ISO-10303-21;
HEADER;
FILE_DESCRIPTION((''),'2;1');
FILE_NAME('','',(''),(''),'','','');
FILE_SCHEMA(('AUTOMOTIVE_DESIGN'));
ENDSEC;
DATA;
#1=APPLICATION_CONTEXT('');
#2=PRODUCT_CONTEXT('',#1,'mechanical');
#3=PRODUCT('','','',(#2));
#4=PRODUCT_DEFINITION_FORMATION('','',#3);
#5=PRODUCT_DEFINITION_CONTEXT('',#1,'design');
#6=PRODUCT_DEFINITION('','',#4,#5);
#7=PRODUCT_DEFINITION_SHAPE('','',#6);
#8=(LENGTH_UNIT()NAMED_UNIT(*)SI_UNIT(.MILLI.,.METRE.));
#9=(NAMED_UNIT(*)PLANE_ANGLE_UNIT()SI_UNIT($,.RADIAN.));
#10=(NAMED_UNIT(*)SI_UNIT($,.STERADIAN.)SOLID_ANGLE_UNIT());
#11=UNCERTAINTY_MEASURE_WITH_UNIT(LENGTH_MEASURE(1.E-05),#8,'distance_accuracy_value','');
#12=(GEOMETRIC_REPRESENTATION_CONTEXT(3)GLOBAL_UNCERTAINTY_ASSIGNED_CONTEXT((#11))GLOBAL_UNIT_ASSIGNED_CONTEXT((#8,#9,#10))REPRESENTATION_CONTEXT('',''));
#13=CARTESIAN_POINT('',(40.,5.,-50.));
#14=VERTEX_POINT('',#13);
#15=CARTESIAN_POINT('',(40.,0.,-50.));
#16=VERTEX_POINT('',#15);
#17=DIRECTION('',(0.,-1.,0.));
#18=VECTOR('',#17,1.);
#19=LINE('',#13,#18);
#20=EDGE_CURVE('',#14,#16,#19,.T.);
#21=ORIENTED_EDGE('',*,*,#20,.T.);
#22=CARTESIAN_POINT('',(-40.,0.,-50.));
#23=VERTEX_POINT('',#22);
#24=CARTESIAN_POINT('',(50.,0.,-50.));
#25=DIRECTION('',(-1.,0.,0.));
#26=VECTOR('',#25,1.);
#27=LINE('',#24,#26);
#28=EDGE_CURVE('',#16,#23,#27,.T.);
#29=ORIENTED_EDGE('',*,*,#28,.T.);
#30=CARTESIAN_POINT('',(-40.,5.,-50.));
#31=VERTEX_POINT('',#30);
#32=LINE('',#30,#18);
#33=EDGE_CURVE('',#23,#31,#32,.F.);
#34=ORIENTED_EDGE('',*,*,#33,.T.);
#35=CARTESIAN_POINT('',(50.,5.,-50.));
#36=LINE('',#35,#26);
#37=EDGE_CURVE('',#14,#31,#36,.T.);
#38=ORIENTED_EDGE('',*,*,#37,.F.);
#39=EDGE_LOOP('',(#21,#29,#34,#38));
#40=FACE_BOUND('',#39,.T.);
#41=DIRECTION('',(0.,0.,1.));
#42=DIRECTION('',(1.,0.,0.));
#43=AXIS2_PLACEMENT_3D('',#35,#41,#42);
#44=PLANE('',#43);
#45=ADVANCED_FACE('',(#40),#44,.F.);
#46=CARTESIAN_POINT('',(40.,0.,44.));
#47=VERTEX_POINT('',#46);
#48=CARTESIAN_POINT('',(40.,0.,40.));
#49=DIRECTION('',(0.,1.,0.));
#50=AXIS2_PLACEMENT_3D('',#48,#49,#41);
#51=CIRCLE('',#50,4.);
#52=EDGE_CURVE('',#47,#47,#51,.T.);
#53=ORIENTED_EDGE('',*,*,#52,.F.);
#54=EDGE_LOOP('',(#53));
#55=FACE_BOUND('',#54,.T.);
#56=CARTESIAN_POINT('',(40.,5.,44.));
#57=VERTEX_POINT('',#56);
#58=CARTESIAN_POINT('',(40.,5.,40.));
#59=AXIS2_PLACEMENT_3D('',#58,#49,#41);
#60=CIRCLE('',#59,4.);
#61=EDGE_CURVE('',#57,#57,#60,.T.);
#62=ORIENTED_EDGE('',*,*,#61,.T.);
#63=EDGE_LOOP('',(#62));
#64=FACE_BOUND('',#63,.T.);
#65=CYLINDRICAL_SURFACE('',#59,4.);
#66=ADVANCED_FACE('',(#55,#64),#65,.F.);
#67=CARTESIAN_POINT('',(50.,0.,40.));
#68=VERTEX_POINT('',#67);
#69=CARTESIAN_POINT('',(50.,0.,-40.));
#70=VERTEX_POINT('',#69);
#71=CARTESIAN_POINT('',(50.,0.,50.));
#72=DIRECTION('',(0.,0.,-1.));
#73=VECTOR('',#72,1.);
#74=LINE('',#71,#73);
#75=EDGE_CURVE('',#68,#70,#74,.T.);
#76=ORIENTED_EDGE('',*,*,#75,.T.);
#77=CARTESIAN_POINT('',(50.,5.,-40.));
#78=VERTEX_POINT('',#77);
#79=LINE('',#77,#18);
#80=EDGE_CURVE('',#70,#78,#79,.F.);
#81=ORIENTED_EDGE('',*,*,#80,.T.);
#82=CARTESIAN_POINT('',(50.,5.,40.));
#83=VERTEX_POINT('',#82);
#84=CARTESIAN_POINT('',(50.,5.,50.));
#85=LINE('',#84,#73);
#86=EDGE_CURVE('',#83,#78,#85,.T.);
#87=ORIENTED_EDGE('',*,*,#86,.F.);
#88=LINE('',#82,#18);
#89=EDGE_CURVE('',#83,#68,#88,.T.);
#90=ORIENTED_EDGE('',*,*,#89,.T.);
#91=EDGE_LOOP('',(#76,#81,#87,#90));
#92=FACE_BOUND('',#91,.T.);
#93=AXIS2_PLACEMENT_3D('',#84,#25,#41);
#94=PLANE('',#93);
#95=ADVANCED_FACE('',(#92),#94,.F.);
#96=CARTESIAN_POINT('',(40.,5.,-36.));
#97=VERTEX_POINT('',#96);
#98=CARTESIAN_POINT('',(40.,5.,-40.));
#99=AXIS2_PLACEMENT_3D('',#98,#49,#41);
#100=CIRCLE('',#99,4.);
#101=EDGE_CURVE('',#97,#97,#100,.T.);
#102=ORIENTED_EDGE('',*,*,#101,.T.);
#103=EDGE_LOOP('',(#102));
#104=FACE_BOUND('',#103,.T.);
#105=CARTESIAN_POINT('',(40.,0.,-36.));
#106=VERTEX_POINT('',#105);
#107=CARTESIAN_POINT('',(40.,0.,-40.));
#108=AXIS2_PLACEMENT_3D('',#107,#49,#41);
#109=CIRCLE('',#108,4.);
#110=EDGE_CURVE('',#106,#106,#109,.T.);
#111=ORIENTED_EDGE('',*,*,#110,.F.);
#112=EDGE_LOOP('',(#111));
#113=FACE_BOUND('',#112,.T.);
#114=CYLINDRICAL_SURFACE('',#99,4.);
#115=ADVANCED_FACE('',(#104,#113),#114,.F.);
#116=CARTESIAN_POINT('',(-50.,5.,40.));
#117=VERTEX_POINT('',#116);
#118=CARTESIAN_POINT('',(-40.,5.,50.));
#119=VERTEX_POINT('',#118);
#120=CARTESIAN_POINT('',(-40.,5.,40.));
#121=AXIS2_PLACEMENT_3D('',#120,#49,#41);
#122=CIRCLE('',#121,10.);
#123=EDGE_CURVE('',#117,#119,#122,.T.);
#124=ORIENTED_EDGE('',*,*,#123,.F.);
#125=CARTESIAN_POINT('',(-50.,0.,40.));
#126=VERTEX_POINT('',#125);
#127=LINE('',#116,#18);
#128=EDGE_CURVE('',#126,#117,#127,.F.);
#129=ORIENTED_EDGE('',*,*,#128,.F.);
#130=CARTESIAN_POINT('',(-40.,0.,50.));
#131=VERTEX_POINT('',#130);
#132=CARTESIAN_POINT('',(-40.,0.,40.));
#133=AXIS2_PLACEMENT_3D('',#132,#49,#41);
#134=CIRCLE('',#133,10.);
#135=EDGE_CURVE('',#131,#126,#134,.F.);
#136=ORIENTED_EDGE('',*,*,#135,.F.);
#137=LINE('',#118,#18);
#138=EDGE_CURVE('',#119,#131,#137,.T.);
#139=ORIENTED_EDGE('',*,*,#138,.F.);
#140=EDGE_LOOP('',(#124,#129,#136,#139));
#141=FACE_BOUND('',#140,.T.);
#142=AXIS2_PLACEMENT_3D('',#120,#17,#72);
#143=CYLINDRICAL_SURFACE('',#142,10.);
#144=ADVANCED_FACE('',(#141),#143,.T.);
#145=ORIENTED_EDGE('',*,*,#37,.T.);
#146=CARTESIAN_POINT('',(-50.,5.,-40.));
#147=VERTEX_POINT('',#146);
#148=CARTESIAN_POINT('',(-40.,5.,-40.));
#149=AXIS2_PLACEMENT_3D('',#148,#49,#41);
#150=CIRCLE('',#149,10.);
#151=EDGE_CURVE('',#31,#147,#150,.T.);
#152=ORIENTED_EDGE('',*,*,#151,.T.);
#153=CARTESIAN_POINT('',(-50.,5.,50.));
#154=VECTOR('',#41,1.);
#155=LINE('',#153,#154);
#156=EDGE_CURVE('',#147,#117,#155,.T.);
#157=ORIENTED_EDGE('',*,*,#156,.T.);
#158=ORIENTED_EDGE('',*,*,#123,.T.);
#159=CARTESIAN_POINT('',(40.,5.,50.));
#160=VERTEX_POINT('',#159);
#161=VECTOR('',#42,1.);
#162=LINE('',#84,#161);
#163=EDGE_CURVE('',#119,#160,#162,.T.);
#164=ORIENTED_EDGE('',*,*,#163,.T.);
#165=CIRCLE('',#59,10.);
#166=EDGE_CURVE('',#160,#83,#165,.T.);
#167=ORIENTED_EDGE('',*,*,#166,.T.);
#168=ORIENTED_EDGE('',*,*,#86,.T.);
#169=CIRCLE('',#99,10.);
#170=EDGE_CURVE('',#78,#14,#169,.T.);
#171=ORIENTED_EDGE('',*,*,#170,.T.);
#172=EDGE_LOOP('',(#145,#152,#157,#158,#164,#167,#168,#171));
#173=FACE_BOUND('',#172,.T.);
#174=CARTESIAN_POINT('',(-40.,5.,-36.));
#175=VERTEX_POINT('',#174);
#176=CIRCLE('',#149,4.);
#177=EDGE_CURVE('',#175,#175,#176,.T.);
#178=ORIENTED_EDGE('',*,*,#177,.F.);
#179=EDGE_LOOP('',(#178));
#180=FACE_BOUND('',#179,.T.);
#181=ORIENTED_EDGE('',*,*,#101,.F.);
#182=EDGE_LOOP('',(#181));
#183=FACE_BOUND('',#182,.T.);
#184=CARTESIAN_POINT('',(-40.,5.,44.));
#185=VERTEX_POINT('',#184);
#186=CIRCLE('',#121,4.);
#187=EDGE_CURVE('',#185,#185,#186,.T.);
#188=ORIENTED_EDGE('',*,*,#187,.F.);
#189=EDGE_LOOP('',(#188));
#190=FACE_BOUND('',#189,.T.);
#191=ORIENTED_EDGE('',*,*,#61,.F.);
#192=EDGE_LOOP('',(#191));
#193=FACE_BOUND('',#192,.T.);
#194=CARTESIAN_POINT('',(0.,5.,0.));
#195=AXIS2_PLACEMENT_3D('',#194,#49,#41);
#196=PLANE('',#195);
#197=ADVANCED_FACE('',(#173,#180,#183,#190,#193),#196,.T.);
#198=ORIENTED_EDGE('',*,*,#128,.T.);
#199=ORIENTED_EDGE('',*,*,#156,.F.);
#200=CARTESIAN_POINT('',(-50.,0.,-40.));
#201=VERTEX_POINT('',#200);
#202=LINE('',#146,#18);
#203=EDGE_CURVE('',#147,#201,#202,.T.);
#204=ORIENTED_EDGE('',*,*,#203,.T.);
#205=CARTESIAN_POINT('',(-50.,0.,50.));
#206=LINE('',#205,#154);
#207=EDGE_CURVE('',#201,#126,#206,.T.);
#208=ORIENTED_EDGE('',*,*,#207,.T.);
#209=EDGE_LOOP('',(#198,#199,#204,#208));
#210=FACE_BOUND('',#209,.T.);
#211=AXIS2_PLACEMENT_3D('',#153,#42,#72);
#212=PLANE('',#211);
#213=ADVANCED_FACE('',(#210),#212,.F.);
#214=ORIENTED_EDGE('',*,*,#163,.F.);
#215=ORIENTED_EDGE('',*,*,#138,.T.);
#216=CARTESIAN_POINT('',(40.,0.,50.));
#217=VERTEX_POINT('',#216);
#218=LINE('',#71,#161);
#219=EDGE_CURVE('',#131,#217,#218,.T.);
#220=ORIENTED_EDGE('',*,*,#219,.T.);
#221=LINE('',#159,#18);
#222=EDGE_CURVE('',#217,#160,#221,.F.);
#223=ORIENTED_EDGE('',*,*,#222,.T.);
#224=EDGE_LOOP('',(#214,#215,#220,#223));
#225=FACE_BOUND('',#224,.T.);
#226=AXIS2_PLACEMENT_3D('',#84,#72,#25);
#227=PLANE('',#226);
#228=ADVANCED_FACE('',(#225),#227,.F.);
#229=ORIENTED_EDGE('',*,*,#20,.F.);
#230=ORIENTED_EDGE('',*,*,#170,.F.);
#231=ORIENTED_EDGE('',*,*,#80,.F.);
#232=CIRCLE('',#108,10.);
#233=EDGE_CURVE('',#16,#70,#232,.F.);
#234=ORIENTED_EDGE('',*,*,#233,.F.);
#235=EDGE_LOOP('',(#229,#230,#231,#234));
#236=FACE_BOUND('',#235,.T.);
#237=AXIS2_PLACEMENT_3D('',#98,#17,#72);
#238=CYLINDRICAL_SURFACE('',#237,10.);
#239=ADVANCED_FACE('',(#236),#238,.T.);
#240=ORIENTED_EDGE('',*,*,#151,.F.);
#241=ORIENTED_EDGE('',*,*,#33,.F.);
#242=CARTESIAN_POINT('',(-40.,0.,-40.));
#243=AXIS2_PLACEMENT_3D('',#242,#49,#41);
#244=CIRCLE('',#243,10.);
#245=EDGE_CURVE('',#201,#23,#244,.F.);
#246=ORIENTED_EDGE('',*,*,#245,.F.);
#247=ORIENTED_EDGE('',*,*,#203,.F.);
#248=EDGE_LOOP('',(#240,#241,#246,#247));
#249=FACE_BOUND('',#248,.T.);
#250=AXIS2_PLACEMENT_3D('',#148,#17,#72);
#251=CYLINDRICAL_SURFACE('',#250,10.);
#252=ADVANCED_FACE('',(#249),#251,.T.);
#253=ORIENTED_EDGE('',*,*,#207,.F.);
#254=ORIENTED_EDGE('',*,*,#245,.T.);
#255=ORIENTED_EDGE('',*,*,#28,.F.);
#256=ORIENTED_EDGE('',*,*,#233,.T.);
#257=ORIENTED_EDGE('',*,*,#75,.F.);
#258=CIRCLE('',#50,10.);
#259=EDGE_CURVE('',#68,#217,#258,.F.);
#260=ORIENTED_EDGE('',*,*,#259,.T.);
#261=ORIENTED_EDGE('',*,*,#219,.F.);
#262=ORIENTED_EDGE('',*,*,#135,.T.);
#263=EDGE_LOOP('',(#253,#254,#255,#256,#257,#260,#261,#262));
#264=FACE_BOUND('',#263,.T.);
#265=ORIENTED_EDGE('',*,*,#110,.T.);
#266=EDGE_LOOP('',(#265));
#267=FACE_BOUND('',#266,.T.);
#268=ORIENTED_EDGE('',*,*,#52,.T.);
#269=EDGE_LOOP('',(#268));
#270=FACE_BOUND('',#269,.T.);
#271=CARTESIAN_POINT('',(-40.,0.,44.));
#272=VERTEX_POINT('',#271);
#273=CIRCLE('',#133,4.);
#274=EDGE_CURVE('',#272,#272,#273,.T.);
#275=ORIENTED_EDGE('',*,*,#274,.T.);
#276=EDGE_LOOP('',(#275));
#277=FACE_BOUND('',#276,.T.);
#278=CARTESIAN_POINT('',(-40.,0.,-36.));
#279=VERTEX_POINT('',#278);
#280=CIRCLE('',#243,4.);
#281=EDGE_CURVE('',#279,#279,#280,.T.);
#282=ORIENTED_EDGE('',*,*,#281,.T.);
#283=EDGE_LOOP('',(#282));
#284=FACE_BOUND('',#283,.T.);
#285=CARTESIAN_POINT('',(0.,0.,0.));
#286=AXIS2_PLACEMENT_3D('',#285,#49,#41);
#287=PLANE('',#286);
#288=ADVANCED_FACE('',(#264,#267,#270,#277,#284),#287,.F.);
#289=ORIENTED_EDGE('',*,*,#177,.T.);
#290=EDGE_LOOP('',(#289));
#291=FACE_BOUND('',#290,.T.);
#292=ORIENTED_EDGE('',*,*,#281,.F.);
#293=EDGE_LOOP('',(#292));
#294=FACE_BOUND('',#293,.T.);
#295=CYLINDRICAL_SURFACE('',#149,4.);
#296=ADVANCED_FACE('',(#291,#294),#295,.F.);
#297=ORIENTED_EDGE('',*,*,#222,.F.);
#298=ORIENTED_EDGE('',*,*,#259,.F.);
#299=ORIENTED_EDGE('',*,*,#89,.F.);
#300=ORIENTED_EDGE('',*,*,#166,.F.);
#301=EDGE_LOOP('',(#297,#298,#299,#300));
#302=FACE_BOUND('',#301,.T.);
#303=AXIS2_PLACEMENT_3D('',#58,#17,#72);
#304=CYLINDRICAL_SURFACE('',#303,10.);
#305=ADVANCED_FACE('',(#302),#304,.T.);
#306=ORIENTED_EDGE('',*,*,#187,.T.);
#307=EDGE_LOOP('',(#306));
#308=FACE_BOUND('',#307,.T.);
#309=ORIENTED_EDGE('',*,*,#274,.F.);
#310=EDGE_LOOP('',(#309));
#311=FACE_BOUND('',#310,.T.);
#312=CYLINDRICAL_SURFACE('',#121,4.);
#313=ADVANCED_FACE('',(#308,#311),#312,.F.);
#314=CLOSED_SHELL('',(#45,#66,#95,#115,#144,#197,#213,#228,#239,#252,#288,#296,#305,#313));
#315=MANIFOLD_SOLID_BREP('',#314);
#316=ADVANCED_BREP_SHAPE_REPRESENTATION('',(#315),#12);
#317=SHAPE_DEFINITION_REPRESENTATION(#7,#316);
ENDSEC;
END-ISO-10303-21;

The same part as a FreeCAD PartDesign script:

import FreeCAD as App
import Part
import Sketcher
Q = App.Units.Quantity


def edges_at(feature, points):
    """Names of the edges that pass closest to the given points."""
    edges = feature.Shape.Edges
    near = lambda p: min(range(len(edges)), key=lambda i: edges[i].distToShape(Part.Vertex(*p))[0])
    return sorted({f"Edge{near(p) + 1}" for p in points})

doc = App.newDocument("Part")
body = doc.addObject("PartDesign::Body", "Body")

sketch1 = body.newObject("Sketcher::SketchObject", "Sketch")
sketch1.AttachmentSupport = (doc.getObject("XZ_Plane"), [""])
sketch1.MapMode = "FlatFace"
sketch1.addGeometry(Part.LineSegment(App.Vector(-50, -50, 0), App.Vector(-50, 50, 0)), False)
sketch1.addGeometry(Part.LineSegment(App.Vector(-50, 50, 0), App.Vector(50, 50, 0)), False)
sketch1.addGeometry(Part.LineSegment(App.Vector(50, 50, 0), App.Vector(50, -50, 0)), False)
sketch1.addGeometry(Part.LineSegment(App.Vector(50, -50, 0), App.Vector(-50, -50, 0)), False)
sketch1.addConstraint(Sketcher.Constraint("Coincident", 0, 2, 1, 1))
sketch1.addConstraint(Sketcher.Constraint("Coincident", 1, 2, 2, 1))
sketch1.addConstraint(Sketcher.Constraint("Coincident", 2, 2, 3, 1))
sketch1.addConstraint(Sketcher.Constraint("Coincident", 3, 2, 0, 1))
sketch1.addConstraint(Sketcher.Constraint("Vertical", 0))
sketch1.addConstraint(Sketcher.Constraint("Horizontal", 1))
sketch1.addConstraint(Sketcher.Constraint("Vertical", 2))
sketch1.addConstraint(Sketcher.Constraint("Horizontal", 3))
sketch1.addConstraint(Sketcher.Constraint("Symmetric", 0, 2, 2, 2, -1, 1))
sketch1.addConstraint(Sketcher.Constraint("Equal", 3, 0))
sketch1.addConstraint(Sketcher.Constraint("DistanceX", 1, 1, 1, 2, Q("100 mm")))
pad1 = body.newObject("PartDesign::Pad", "Pad")
pad1.Profile = sketch1
pad1.Length = 5
pad1.Reversed = True

sketch2 = body.newObject("Sketcher::SketchObject", "Sketch001")
sketch2.AttachmentSupport = (doc.getObject("XZ_Plane"), [""])
sketch2.MapMode = "FlatFace"
sketch2.AttachmentOffset = App.Placement(App.Vector(0, 0, -5), App.Rotation())
sketch2.addGeometry(Part.Circle(App.Vector(-40, 40, 0), App.Vector(0, 0, 1), 4), False)
sketch2.addGeometry(Part.Circle(App.Vector(-40, -40, 0), App.Vector(0, 0, 1), 4), False)
sketch2.addGeometry(Part.Circle(App.Vector(40, -40, 0), App.Vector(0, 0, 1), 4), False)
sketch2.addGeometry(Part.Circle(App.Vector(40, 40, 0), App.Vector(0, 0, 1), 4), False)
sketch2.addConstraint(Sketcher.Constraint("Equal", 0, 1))
sketch2.addConstraint(Sketcher.Constraint("Equal", 1, 2))
sketch2.addConstraint(Sketcher.Constraint("Equal", 2, 3))
sketch2.addConstraint(Sketcher.Constraint("Symmetric", 0, 3, 2, 3, -1, 1))
sketch2.addConstraint(Sketcher.Constraint("Symmetric", 1, 3, 3, 3, -1, 1))
sketch2.addConstraint(Sketcher.Constraint("Symmetric", 1, 3, 2, 3, -2))
sketch2.addConstraint(Sketcher.Constraint("Diameter", 0, Q("8 mm")))
sketch2.addConstraint(Sketcher.Constraint("DistanceX", 0, 3, -1, 1, Q("40 mm")))
sketch2.addConstraint(Sketcher.Constraint("DistanceY", -1, 1, 0, 3, Q("40 mm")))
doc.recompute()
hole = body.newObject("PartDesign::Hole", "Hole")
hole.Profile = sketch2
hole.ThreadType = "None"
hole.Diameter = 8
hole.DepthType = "Dimension"
hole.Depth = 5
hole.DrillPoint = "Flat"
hole.Reversed = True
doc.recompute()

fillet = body.newObject("PartDesign::Fillet", "Fillet")
fillet.Base = (hole, edges_at(hole, [
    (-50, 2.5, -50),
    (50, 2.5, -50),
    (50, 2.5, 50),
    (-50, 2.5, 50),
]))
fillet.Radius = 10

doc.recompute()
